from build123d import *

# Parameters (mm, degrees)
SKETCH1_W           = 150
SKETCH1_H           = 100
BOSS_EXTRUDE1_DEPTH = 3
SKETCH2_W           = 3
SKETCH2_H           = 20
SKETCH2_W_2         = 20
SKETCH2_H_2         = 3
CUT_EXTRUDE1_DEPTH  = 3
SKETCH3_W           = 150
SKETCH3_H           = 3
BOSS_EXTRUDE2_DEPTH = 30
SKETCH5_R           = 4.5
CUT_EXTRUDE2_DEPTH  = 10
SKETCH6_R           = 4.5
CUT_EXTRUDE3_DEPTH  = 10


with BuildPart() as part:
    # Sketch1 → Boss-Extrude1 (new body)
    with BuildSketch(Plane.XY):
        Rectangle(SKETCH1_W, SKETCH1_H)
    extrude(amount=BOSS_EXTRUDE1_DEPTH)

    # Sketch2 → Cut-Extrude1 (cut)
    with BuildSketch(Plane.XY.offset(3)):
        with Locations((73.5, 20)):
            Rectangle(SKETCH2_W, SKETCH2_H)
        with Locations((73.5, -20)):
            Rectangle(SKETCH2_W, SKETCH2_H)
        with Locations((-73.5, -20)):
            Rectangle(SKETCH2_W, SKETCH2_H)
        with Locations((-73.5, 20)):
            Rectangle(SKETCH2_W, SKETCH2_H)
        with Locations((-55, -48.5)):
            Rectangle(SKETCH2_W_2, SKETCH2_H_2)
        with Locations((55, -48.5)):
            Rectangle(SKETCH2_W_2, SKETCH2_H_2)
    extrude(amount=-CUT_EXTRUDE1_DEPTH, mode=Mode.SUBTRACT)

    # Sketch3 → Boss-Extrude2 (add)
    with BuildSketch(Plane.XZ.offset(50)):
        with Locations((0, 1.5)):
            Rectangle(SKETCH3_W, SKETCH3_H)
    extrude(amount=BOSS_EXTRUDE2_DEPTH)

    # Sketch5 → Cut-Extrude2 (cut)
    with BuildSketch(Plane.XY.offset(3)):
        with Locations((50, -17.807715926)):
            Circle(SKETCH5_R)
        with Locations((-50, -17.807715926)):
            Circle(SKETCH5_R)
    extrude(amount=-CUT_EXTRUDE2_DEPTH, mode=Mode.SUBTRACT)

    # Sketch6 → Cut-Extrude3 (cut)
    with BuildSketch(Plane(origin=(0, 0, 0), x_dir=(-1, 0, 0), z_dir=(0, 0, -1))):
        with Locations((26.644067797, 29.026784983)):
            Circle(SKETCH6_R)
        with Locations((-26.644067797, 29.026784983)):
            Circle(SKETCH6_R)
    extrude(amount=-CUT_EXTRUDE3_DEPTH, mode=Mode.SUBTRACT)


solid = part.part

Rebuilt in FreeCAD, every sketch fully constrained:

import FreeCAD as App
import Part
import Sketcher

V = App.Vector
Q = App.Units.Quantity


def add_polygon(sketch, points):
    """Adds a closed chain of lines whose ends are joined by coincident constraints."""
    first, n = sketch.GeometryCount, len(points)
    for a, b in zip(points, points[1:] + points[:1]):
        sketch.addGeometry(Part.LineSegment(App.Vector(*a, 0), App.Vector(*b, 0)), False)
    for i in range(n):
        sketch.addConstraint(Sketcher.Constraint("Coincident", first + i, 2, first + (i + 1) % n, 1))

doc = App.newDocument("Part")
body = doc.addObject("PartDesign::Body", "Body")

# Sketch on XY plane
sketch1 = body.newObject("Sketcher::SketchObject", "Sketch")
sketch1.AttachmentSupport = (doc.getObject("XY_Plane"), [""])
sketch1.MapMode = "FlatFace"
add_polygon(sketch1, [(-75, 50), (-75, -50), (75, -50), (75, 50)])  # lines 0-3
sketch1.addConstraint(Sketcher.Constraint("Vertical", 0))
sketch1.addConstraint(Sketcher.Constraint("Horizontal", 1))
sketch1.addConstraint(Sketcher.Constraint("Vertical", 2))
sketch1.addConstraint(Sketcher.Constraint("Horizontal", 3))
sketch1.addConstraint(Sketcher.Constraint("Symmetric", 0, 2, 2, 2, -1, 1))
sketch1.addConstraint(Sketcher.Constraint("DistanceX", 1, 1, 1, 2, Q("150 mm")))
sketch1.addConstraint(Sketcher.Constraint("DistanceY", 0, 2, 0, 1, Q("100 mm")))
pad1 = body.newObject("PartDesign::Pad", "Pad")
pad1.Profile = sketch1
pad1.Length = 3

# Sketch on XY plane
sketch2 = body.newObject("Sketcher::SketchObject", "Sketch001")
sketch2.AttachmentSupport = (doc.getObject("XY_Plane"), [""])
sketch2.MapMode = "FlatFace"
sketch2.AttachmentOffset = App.Placement(V(0, 0, 3), App.Rotation())
add_polygon(sketch2, [(72, 30), (72, 10), (75, 10), (75, 30)])  # lines 0-3
add_polygon(sketch2, [(72, -10), (72, -30), (75, -30), (75, -10)])  # lines 4-7
add_polygon(sketch2, [(-75, -10), (-75, -30), (-72, -30), (-72, -10)])  # lines 8-11
add_polygon(sketch2, [(-75, 30), (-75, 10), (-72, 10), (-72, 30)])  # lines 12-15
add_polygon(sketch2, [(-65, -47), (-65, -50), (-45, -50), (-45, -47)])  # lines 16-19
add_polygon(sketch2, [(45, -47), (45, -50), (65, -50), (65, -47)])  # lines 20-23
sketch2.addConstraint(Sketcher.Constraint("Vertical", 0))
sketch2.addConstraint(Sketcher.Constraint("Horizontal", 1))
sketch2.addConstraint(Sketcher.Constraint("Vertical", 2))
sketch2.addConstraint(Sketcher.Constraint("Horizontal", 3))
sketch2.addConstraint(Sketcher.Constraint("Vertical", 4))
sketch2.addConstraint(Sketcher.Constraint("Horizontal", 5))
sketch2.addConstraint(Sketcher.Constraint("Vertical", 6))
sketch2.addConstraint(Sketcher.Constraint("Horizontal", 7))
sketch2.addConstraint(Sketcher.Constraint("Vertical", 8))
sketch2.addConstraint(Sketcher.Constraint("Horizontal", 9))
sketch2.addConstraint(Sketcher.Constraint("Vertical", 10))
sketch2.addConstraint(Sketcher.Constraint("Horizontal", 11))
sketch2.addConstraint(Sketcher.Constraint("Vertical", 12))
sketch2.addConstraint(Sketcher.Constraint("Horizontal", 13))
sketch2.addConstraint(Sketcher.Constraint("Vertical", 14))
sketch2.addConstraint(Sketcher.Constraint("Horizontal", 15))
sketch2.addConstraint(Sketcher.Constraint("Vertical", 16))
sketch2.addConstraint(Sketcher.Constraint("Horizontal", 17))
sketch2.addConstraint(Sketcher.Constraint("Vertical", 18))
sketch2.addConstraint(Sketcher.Constraint("Horizontal", 19))
sketch2.addConstraint(Sketcher.Constraint("Vertical", 20))
sketch2.addConstraint(Sketcher.Constraint("Horizontal", 21))
sketch2.addConstraint(Sketcher.Constraint("Vertical", 22))
sketch2.addConstraint(Sketcher.Constraint("Horizontal", 23))
sketch2.addConstraint(Sketcher.Constraint("Symmetric", 2, 2, 8, 2, -1, 1))
sketch2.addConstraint(Sketcher.Constraint("Symmetric", 0, 2, 10, 2, -1, 1))
sketch2.addConstraint(Sketcher.Constraint("Symmetric", 6, 2, 12, 2, -1, 1))
sketch2.addConstraint(Sketcher.Constraint("Symmetric", 4, 2, 14, 2, -1, 1))
sketch2.addConstraint(Sketcher.Constraint("Symmetric", 5, 2, 8, 2, -2))
sketch2.addConstraint(Sketcher.Constraint("Symmetric", 7, 2, 10, 2, -2))
sketch2.addConstraint(Sketcher.Constraint("Symmetric", 17, 2, 20, 2, -2))
sketch2.addConstraint(Sketcher.Constraint("Symmetric", 19, 2, 22, 2, -2))
sketch2.addConstraint(Sketcher.Constraint("Equal", 23, 0))
sketch2.addConstraint(Sketcher.Constraint("Equal", 15, 16))
sketch2.addConstraint(Sketcher.Constraint("DistanceX", 1, 1, 1, 2, Q("3 mm")))
sketch2.addConstraint(Sketcher.Constraint("DistanceX", 17, 1, 17, 2, Q("20 mm")))
sketch2.addConstraint(Sketcher.Constraint("DistanceX", -1, 1, 0, 2, Q("72 mm")))
sketch2.addConstraint(Sketcher.Constraint("DistanceY", -1, 1, 0, 2, Q("10 mm")))
sketch2.addConstraint(Sketcher.Constraint("DistanceX", 16, 2, -1, 1, Q("65 mm")))
sketch2.addConstraint(Sketcher.Constraint("DistanceY", 16, 2, -1, 1, Q("50 mm")))
pocket1 = body.newObject("PartDesign::Pocket", "Pocket")
pocket1.Profile = sketch2
pocket1.Length = 3

# Sketch on XZ plane
sketch3 = body.newObject("Sketcher::SketchObject", "Sketch002")
sketch3.AttachmentSupport = (doc.getObject("XZ_Plane"), [""])
sketch3.MapMode = "FlatFace"
sketch3.AttachmentOffset = App.Placement(V(0, 0, 50), App.Rotation())
add_polygon(sketch3, [(-75, 3), (-75, 0), (75, 0), (75, 3)])  # lines 0-3
sketch3.addConstraint(Sketcher.Constraint("Vertical", 0))
sketch3.addConstraint(Sketcher.Constraint("Horizontal", 1))
sketch3.addConstraint(Sketcher.Constraint("Vertical", 2))
sketch3.addConstraint(Sketcher.Constraint("Horizontal", 3))
sketch3.addConstraint(Sketcher.Constraint("Symmetric", 0, 2, 1, 2, -1, 1))
sketch3.addConstraint(Sketcher.Constraint("DistanceX", 1, 1, 1, 2, Q("150 mm")))
sketch3.addConstraint(Sketcher.Constraint("DistanceY", 0, 2, 0, 1, Q("3 mm")))
pad2 = body.newObject("PartDesign::Pad", "Pad001")
pad2.Profile = sketch3
pad2.Length = 30

# Sketch on XY plane
sketch4 = body.newObject("Sketcher::SketchObject", "Sketch003")
sketch4.AttachmentSupport = (doc.getObject("XY_Plane"), [""])
sketch4.MapMode = "FlatFace"
sketch4.AttachmentOffset = App.Placement(V(0, 0, 3), App.Rotation())
sketch4.addGeometry(Part.Circle(V(50, -17.807716, 0), V(0, 0, 1), 4.5), False)
sketch4.addGeometry(Part.Circle(V(-50, -17.807716, 0), V(0, 0, 1), 4.5), False)
sketch4.addConstraint(Sketcher.Constraint("Equal", 0, 1))
sketch4.addConstraint(Sketcher.Constraint("Symmetric", 0, 3, 1, 3, -2))
sketch4.addConstraint(Sketcher.Constraint("Diameter", 0, Q("9 mm")))
sketch4.addConstraint(Sketcher.Constraint("DistanceX", -1, 1, 0, 3, Q("50 mm")))
sketch4.addConstraint(Sketcher.Constraint("DistanceY", 0, 3, -1, 1, Q("17.807716 mm")))
pocket2 = body.newObject("PartDesign::Pocket", "Pocket001")
pocket2.Profile = sketch4
pocket2.Length = 10

# Sketch on XY plane
sketch5 = body.newObject("Sketcher::SketchObject", "Sketch004")
sketch5.AttachmentSupport = (doc.getObject("XY_Plane"), [""])
sketch5.MapMode = "FlatFace"
sketch5.addGeometry(Part.Circle(V(-26.644068, 29.026785, 0), V(0, 0, 1), 4.5), False)
sketch5.addGeometry(Part.Circle(V(26.644068, 29.026785, 0), V(0, 0, 1), 4.5), False)
sketch5.addConstraint(Sketcher.Constraint("Equal", 0, 1))
sketch5.addConstraint(Sketcher.Constraint("Symmetric", 0, 3, 1, 3, -2))
sketch5.addConstraint(Sketcher.Constraint("Diameter", 0, Q("9 mm")))
sketch5.addConstraint(Sketcher.Constraint("DistanceX", 0, 3, -1, 1, Q("26.644068 mm")))
sketch5.addConstraint(Sketcher.Constraint("DistanceY", -1, 1, 0, 3, Q("29.026785 mm")))
pocket3 = body.newObject("PartDesign::Pocket", "Pocket002")
pocket3.Profile = sketch5
pocket3.Length = 10
pocket3.Reversed = True

doc.recompute()
